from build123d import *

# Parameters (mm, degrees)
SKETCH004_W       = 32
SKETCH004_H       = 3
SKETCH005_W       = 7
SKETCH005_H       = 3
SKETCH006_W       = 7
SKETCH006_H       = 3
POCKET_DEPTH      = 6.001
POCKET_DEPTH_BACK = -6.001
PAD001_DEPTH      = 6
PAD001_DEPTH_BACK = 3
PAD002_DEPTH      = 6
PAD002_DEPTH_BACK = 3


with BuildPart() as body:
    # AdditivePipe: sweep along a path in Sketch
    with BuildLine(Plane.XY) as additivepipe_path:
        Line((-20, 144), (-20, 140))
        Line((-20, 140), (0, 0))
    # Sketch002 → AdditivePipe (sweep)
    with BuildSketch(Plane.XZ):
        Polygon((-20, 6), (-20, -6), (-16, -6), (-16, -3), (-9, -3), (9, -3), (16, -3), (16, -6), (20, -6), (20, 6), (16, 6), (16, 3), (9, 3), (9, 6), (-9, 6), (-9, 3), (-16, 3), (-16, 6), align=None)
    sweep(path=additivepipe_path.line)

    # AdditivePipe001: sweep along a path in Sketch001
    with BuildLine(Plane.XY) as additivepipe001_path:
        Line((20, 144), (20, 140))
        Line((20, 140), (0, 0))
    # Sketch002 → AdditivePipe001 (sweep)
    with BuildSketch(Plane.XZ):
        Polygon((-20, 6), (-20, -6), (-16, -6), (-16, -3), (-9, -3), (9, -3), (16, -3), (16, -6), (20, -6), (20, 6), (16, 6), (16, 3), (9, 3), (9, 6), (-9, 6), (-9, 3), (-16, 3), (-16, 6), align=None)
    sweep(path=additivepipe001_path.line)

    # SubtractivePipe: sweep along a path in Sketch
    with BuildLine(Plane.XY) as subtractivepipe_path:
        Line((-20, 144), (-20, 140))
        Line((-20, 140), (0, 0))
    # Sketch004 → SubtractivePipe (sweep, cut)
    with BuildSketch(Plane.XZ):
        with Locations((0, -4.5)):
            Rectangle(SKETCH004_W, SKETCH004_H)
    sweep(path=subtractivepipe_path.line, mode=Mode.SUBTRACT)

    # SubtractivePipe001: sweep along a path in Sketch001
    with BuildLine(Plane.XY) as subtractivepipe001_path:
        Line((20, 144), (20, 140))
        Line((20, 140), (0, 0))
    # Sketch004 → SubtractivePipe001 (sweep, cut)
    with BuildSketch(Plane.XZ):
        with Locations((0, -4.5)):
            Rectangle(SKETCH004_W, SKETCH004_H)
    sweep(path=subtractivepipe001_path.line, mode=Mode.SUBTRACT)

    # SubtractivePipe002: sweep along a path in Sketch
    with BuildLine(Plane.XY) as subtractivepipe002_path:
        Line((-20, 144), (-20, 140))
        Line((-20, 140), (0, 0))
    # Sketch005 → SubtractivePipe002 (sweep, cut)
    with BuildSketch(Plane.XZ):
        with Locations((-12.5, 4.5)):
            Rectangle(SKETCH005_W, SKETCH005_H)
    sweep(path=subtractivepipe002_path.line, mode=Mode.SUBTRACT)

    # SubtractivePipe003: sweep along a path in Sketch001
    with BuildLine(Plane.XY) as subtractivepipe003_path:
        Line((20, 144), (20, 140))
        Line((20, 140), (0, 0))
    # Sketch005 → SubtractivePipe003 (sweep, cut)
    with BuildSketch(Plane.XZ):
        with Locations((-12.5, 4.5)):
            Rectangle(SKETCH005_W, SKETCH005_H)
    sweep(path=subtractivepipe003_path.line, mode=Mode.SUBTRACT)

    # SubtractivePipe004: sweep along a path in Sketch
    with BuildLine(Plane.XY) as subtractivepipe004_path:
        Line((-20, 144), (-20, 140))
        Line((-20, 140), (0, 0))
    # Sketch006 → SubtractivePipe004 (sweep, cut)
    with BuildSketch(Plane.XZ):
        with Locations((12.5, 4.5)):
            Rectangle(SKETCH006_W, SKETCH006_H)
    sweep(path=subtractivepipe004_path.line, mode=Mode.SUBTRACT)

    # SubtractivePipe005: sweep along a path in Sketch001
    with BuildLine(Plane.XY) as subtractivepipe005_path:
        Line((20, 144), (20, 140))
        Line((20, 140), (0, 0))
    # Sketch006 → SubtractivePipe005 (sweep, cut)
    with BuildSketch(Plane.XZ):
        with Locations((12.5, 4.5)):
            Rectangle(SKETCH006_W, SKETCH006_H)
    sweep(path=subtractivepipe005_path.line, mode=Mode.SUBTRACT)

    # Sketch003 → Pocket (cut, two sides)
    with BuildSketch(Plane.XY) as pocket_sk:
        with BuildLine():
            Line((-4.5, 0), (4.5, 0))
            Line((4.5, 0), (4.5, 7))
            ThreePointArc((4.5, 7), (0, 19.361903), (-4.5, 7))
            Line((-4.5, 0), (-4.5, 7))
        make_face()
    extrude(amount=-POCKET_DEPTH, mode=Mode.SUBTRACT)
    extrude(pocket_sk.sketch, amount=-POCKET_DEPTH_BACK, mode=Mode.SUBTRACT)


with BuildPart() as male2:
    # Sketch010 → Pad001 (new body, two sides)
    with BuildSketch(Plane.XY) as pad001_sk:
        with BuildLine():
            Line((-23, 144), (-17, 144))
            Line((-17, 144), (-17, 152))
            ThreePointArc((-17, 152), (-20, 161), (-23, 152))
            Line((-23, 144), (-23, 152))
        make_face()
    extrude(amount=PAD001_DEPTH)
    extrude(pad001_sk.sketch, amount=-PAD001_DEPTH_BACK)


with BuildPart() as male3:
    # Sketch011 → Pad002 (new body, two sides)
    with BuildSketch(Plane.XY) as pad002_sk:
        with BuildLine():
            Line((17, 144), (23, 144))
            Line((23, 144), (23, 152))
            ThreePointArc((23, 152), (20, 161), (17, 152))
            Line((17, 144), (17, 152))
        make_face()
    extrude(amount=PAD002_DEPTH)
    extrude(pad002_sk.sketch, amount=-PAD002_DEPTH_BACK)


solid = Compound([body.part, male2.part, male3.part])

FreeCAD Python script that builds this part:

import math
import FreeCAD as App
import Part
import Sketcher
from FreeCAD import Vector


def add_polygon(sketch, points):
    """Adds a closed chain of lines whose ends are joined by coincident constraints."""
    first, n = sketch.GeometryCount, len(points)
    for a, b in zip(points, points[1:] + points[:1]):
        sketch.addGeometry(Part.LineSegment(App.Vector(*a, 0), App.Vector(*b, 0)), False)
    for i in range(n):
        sketch.addConstraint(Sketcher.Constraint("Coincident", first + i, 2, first + (i + 1) % n, 1))

doc = App.newDocument("Part")
body = doc.addObject("PartDesign::Body", "Body")

# Sketch on XZ plane
sketch1 = body.newObject("Sketcher::SketchObject", "Sketch")
sketch1.AttachmentSupport = (doc.getObject("XZ_Plane"), [""])
sketch1.MapMode = "FlatFace"
add_polygon(sketch1, [(-20, 6), (-20, -6), (-16, -6), (-16, -3), (16, -3), (16, -6), (20, -6), (20, 6), (16, 6), (16, 3), (9, 3), (9, 6), (-9, 6), (-9, 3), (-16, 3), (-16, 6)])  # lines 0-15
sketch1.addConstraint(Sketcher.Constraint("Vertical", 0))
sketch1.addConstraint(Sketcher.Constraint("Horizontal", 1))
sketch1.addConstraint(Sketcher.Constraint("Vertical", 2))
sketch1.addConstraint(Sketcher.Constraint("Horizontal", 3))
sketch1.addConstraint(Sketcher.Constraint("Vertical", 4))
sketch1.addConstraint(Sketcher.Constraint("Horizontal", 5))
sketch1.addConstraint(Sketcher.Constraint("Vertical", 6))
sketch1.addConstraint(Sketcher.Constraint("Horizontal", 7))
sketch1.addConstraint(Sketcher.Constraint("Vertical", 8))
sketch1.addConstraint(Sketcher.Constraint("Horizontal", 9))
sketch1.addConstraint(Sketcher.Constraint("Vertical", 10))
sketch1.addConstraint(Sketcher.Constraint("Horizontal", 11))
sketch1.addConstraint(Sketcher.Constraint("Vertical", 12))
sketch1.addConstraint(Sketcher.Constraint("Horizontal", 13))
sketch1.addConstraint(Sketcher.Constraint("Vertical", 14))
sketch1.addConstraint(Sketcher.Constraint("Horizontal", 15))
sketch1.addConstraint(Sketcher.Constraint("Symmetric", 0, 2, 6, 2, -1, 1))
sketch1.addConstraint(Sketcher.Constraint("Symmetric", 2, 2, 8, 2, -1, 1))
sketch1.addConstraint(Sketcher.Constraint("Symmetric", 3, 2, 13, 2, -1, 1))
sketch1.addConstraint(Sketcher.Constraint("Symmetric", 1, 2, 4, 2, -2))
sketch1.addConstraint(Sketcher.Constraint("Horizontal", 7, 2, 10, 2))
sketch1.addConstraint(Sketcher.Constraint("Horizontal", 11, 2, 14, 2))
sketch1.addConstraint(Sketcher.Constraint("Equal", 9, 13))
sketch1.addConstraint(Sketcher.Constraint("DistanceX", 1, 1, 1, 2, 4.0))
sketch1.addConstraint(Sketcher.Constraint("DistanceX", 3, 1, 3, 2, 32.0))
sketch1.addConstraint(Sketcher.Constraint("DistanceX", 9, 2, 9, 1, 7.0))
sketch1.addConstraint(Sketcher.Constraint("DistanceY", 0, 2, 0, 1, 12.0))
sketch1.addConstraint(Sketcher.Constraint("DistanceY", 2, 1, 2, 2, 3.0))

# Sketch on XY plane
sketch2 = body.newObject("Sketcher::SketchObject", "Sketch001")
sketch2.AttachmentSupport = (doc.getObject("XY_Plane"), [""])
sketch2.MapMode = "FlatFace"
sketch2.addGeometry(Part.LineSegment(Vector(-20, 144, 0), Vector(-20, 140, 0)), False)
sketch2.addGeometry(Part.LineSegment(Vector(-20, 140, 0), Vector(0, 0, 0)), False)
sketch2.addConstraint(Sketcher.Constraint("Coincident", 0, 2, 1, 1))
sketch2.addConstraint(Sketcher.Constraint("Vertical", 0))
sketch2.addConstraint(Sketcher.Constraint("Coincident", 1, 2, -1, 1))
sketch2.addConstraint(Sketcher.Constraint("DistanceY", 0, 2, 0, 1, 4.0))
sketch2.addConstraint(Sketcher.Constraint("DistanceX", 0, 1, -1, 1, 20.0))
sketch2.addConstraint(Sketcher.Constraint("DistanceY", -1, 1, 0, 1, 144.0))
doc.recompute()

additivepipe = body.newObject("PartDesign::AdditivePipe", "AdditivePipe")
additivepipe.Profile = sketch1
additivepipe.Spine = (sketch2, ["Edge1", "Edge2"])

# Sketch on XZ plane
sketch3 = body.newObject("Sketcher::SketchObject", "Sketch002")
sketch3.AttachmentSupport = (doc.getObject("XZ_Plane"), [""])
sketch3.MapMode = "FlatFace"
add_polygon(sketch3, [(-20, 6), (-20, -6), (-16, -6), (-16, -3), (16, -3), (16, -6), (20, -6), (20, 6), (16, 6), (16, 3), (9, 3), (9, 6), (-9, 6), (-9, 3), (-16, 3), (-16, 6)])  # lines 0-15
sketch3.addConstraint(Sketcher.Constraint("Vertical", 0))
sketch3.addConstraint(Sketcher.Constraint("Horizontal", 1))
sketch3.addConstraint(Sketcher.Constraint("Vertical", 2))
sketch3.addConstraint(Sketcher.Constraint("Horizontal", 3))
sketch3.addConstraint(Sketcher.Constraint("Vertical", 4))
sketch3.addConstraint(Sketcher.Constraint("Horizontal", 5))
sketch3.addConstraint(Sketcher.Constraint("Vertical", 6))
sketch3.addConstraint(Sketcher.Constraint("Horizontal", 7))
sketch3.addConstraint(Sketcher.Constraint("Vertical", 8))
sketch3.addConstraint(Sketcher.Constraint("Horizontal", 9))
sketch3.addConstraint(Sketcher.Constraint("Vertical", 10))
sketch3.addConstraint(Sketcher.Constraint("Horizontal", 11))
sketch3.addConstraint(Sketcher.Constraint("Vertical", 12))
sketch3.addConstraint(Sketcher.Constraint("Horizontal", 13))
sketch3.addConstraint(Sketcher.Constraint("Vertical", 14))
sketch3.addConstraint(Sketcher.Constraint("Horizontal", 15))
sketch3.addConstraint(Sketcher.Constraint("Symmetric", 0, 2, 6, 2, -1, 1))
sketch3.addConstraint(Sketcher.Constraint("Symmetric", 2, 2, 8, 2, -1, 1))
sketch3.addConstraint(Sketcher.Constraint("Symmetric", 3, 2, 13, 2, -1, 1))
sketch3.addConstraint(Sketcher.Constraint("Symmetric", 1, 2, 4, 2, -2))
sketch3.addConstraint(Sketcher.Constraint("Horizontal", 7, 2, 10, 2))
sketch3.addConstraint(Sketcher.Constraint("Horizontal", 11, 2, 14, 2))
sketch3.addConstraint(Sketcher.Constraint("Equal", 9, 13))
sketch3.addConstraint(Sketcher.Constraint("DistanceX", 1, 1, 1, 2, 4.0))
sketch3.addConstraint(Sketcher.Constraint("DistanceX", 3, 1, 3, 2, 32.0))
sketch3.addConstraint(Sketcher.Constraint("DistanceX", 9, 2, 9, 1, 7.0))
sketch3.addConstraint(Sketcher.Constraint("DistanceY", 0, 2, 0, 1, 12.0))
sketch3.addConstraint(Sketcher.Constraint("DistanceY", 2, 1, 2, 2, 3.0))

# Sketch on XY plane
sketch4 = body.newObject("Sketcher::SketchObject", "Sketch003")
sketch4.AttachmentSupport = (doc.getObject("XY_Plane"), [""])
sketch4.MapMode = "FlatFace"
sketch4.addGeometry(Part.LineSegment(Vector(20, 144, 0), Vector(20, 140, 0)), False)
sketch4.addGeometry(Part.LineSegment(Vector(20, 140, 0), Vector(0, 0, 0)), False)
sketch4.addConstraint(Sketcher.Constraint("Coincident", 0, 2, 1, 1))
sketch4.addConstraint(Sketcher.Constraint("Vertical", 0))
sketch4.addConstraint(Sketcher.Constraint("Coincident", 1, 2, -1, 1))
sketch4.addConstraint(Sketcher.Constraint("DistanceY", 0, 2, 0, 1, 4.0))
sketch4.addConstraint(Sketcher.Constraint("DistanceX", -1, 1, 0, 1, 20.0))
sketch4.addConstraint(Sketcher.Constraint("DistanceY", -1, 1, 0, 1, 144.0))
doc.recompute()

additivepipe2 = body.newObject("PartDesign::AdditivePipe", "AdditivePipe001")
additivepipe2.Profile = sketch3
additivepipe2.Spine = (sketch4, ["Edge1", "Edge2"])

# Sketch on XZ plane
sketch5 = body.newObject("Sketcher::SketchObject", "Sketch004")
sketch5.AttachmentSupport = (doc.getObject("XZ_Plane"), [""])
sketch5.MapMode = "FlatFace"
add_polygon(sketch5, [(-16, -3), (-16, -6), (16, -6), (16, -3)])  # lines 0-3
sketch5.addConstraint(Sketcher.Constraint("Vertical", 0))
sketch5.addConstraint(Sketcher.Constraint("Horizontal", 1))
sketch5.addConstraint(Sketcher.Constraint("Vertical", 2))
sketch5.addConstraint(Sketcher.Constraint("Horizontal", 3))
sketch5.addConstraint(Sketcher.Constraint("DistanceX", 1, 1, 1, 2, 32.0))
sketch5.addConstraint(Sketcher.Constraint("DistanceY", 0, 2, 0, 1, 3.0))
sketch5.addConstraint(Sketcher.Constraint("DistanceX", 0, 2, -1, 1, 16.0))
sketch5.addConstraint(Sketcher.Constraint("DistanceY", 0, 2, -1, 1, 6.0))

# Sketch on XY plane
sketch6 = body.newObject("Sketcher::SketchObject", "Sketch005")
sketch6.AttachmentSupport = (doc.getObject("XY_Plane"), [""])
sketch6.MapMode = "FlatFace"
sketch6.addGeometry(Part.LineSegment(Vector(-20, 144, 0), Vector(-20, 140, 0)), False)
sketch6.addGeometry(Part.LineSegment(Vector(-20, 140, 0), Vector(0, 0, 0)), False)
sketch6.addConstraint(Sketcher.Constraint("Coincident", 0, 2, 1, 1))
sketch6.addConstraint(Sketcher.Constraint("Vertical", 0))
sketch6.addConstraint(Sketcher.Constraint("Coincident", 1, 2, -1, 1))
sketch6.addConstraint(Sketcher.Constraint("DistanceY", 0, 2, 0, 1, 4.0))
sketch6.addConstraint(Sketcher.Constraint("DistanceX", 0, 1, -1, 1, 20.0))
sketch6.addConstraint(Sketcher.Constraint("DistanceY", -1, 1, 0, 1, 144.0))
doc.recompute()

subtractivepipe = body.newObject("PartDesign::SubtractivePipe", "SubtractivePipe")
subtractivepipe.Profile = sketch5
subtractivepipe.Spine = (sketch6, ["Edge1", "Edge2"])

# Sketch on XZ plane
sketch7 = body.newObject("Sketcher::SketchObject", "Sketch006")
sketch7.AttachmentSupport = (doc.getObject("XZ_Plane"), [""])
sketch7.MapMode = "FlatFace"
add_polygon(sketch7, [(-16, -3), (-16, -6), (16, -6), (16, -3)])  # lines 0-3
sketch7.addConstraint(Sketcher.Constraint("Vertical", 0))
sketch7.addConstraint(Sketcher.Constraint("Horizontal", 1))
sketch7.addConstraint(Sketcher.Constraint("Vertical", 2))
sketch7.addConstraint(Sketcher.Constraint("Horizontal", 3))
sketch7.addConstraint(Sketcher.Constraint("DistanceX", 1, 1, 1, 2, 32.0))
sketch7.addConstraint(Sketcher.Constraint("DistanceY", 0, 2, 0, 1, 3.0))
sketch7.addConstraint(Sketcher.Constraint("DistanceX", 0, 2, -1, 1, 16.0))
sketch7.addConstraint(Sketcher.Constraint("DistanceY", 0, 2, -1, 1, 6.0))

# Sketch on XY plane
sketch8 = body.newObject("Sketcher::SketchObject", "Sketch007")
sketch8.AttachmentSupport = (doc.getObject("XY_Plane"), [""])
sketch8.MapMode = "FlatFace"
sketch8.addGeometry(Part.LineSegment(Vector(20, 144, 0), Vector(20, 140, 0)), False)
sketch8.addGeometry(Part.LineSegment(Vector(20, 140, 0), Vector(0, 0, 0)), False)
sketch8.addConstraint(Sketcher.Constraint("Coincident", 0, 2, 1, 1))
sketch8.addConstraint(Sketcher.Constraint("Vertical", 0))
sketch8.addConstraint(Sketcher.Constraint("Coincident", 1, 2, -1, 1))
sketch8.addConstraint(Sketcher.Constraint("DistanceY", 0, 2, 0, 1, 4.0))
sketch8.addConstraint(Sketcher.Constraint("DistanceX", -1, 1, 0, 1, 20.0))
sketch8.addConstraint(Sketcher.Constraint("DistanceY", -1, 1, 0, 1, 144.0))
doc.recompute()

subtractivepipe2 = body.newObject("PartDesign::SubtractivePipe", "SubtractivePipe001")
subtractivepipe2.Profile = sketch7
subtractivepipe2.Spine = (sketch8, ["Edge1", "Edge2"])

# Sketch on XZ plane
sketch9 = body.newObject("Sketcher::SketchObject", "Sketch008")
sketch9.AttachmentSupport = (doc.getObject("XZ_Plane"), [""])
sketch9.MapMode = "FlatFace"
add_polygon(sketch9, [(-16, 6), (-16, 3), (-9, 3), (-9, 6)])  # lines 0-3
sketch9.addConstraint(Sketcher.Constraint("Vertical", 0))
sketch9.addConstraint(Sketcher.Constraint("Horizontal", 1))
sketch9.addConstraint(Sketcher.Constraint("Vertical", 2))
sketch9.addConstraint(Sketcher.Constraint("Horizontal", 3))
sketch9.addConstraint(Sketcher.Constraint("DistanceX", 1, 1, 1, 2, 7.0))
sketch9.addConstraint(Sketcher.Constraint("DistanceY", 0, 2, 0, 1, 3.0))
sketch9.addConstraint(Sketcher.Constraint("DistanceX", 0, 2, -1, 1, 16.0))
sketch9.addConstraint(Sketcher.Constraint("DistanceY", -1, 1, 0, 2, 3.0))

# Sketch on XY plane
sketch10 = body.newObject("Sketcher::SketchObject", "Sketch009")
sketch10.AttachmentSupport = (doc.getObject("XY_Plane"), [""])
sketch10.MapMode = "FlatFace"
sketch10.addGeometry(Part.LineSegment(Vector(-20, 144, 0), Vector(-20, 140, 0)), False)
sketch10.addGeometry(Part.LineSegment(Vector(-20, 140, 0), Vector(0, 0, 0)), False)
sketch10.addConstraint(Sketcher.Constraint("Coincident", 0, 2, 1, 1))
sketch10.addConstraint(Sketcher.Constraint("Vertical", 0))
sketch10.addConstraint(Sketcher.Constraint("Coincident", 1, 2, -1, 1))
sketch10.addConstraint(Sketcher.Constraint("DistanceY", 0, 2, 0, 1, 4.0))
sketch10.addConstraint(Sketcher.Constraint("DistanceX", 0, 1, -1, 1, 20.0))
sketch10.addConstraint(Sketcher.Constraint("DistanceY", -1, 1, 0, 1, 144.0))
doc.recompute()

subtractivepipe3 = body.newObject("PartDesign::SubtractivePipe", "SubtractivePipe002")
subtractivepipe3.Profile = sketch9
subtractivepipe3.Spine = (sketch10, ["Edge1", "Edge2"])

# Sketch on XZ plane
sketch11 = body.newObject("Sketcher::SketchObject", "Sketch010")
sketch11.AttachmentSupport = (doc.getObject("XZ_Plane"), [""])
sketch11.MapMode = "FlatFace"
add_polygon(sketch11, [(-16, 6), (-16, 3), (-9, 3), (-9, 6)])  # lines 0-3
sketch11.addConstraint(Sketcher.Constraint("Vertical", 0))
sketch11.addConstraint(Sketcher.Constraint("Horizontal", 1))
sketch11.addConstraint(Sketcher.Constraint("Vertical", 2))
sketch11.addConstraint(Sketcher.Constraint("Horizontal", 3))
sketch11.addConstraint(Sketcher.Constraint("DistanceX", 1, 1, 1, 2, 7.0))
sketch11.addConstraint(Sketcher.Constraint("DistanceY", 0, 2, 0, 1, 3.0))
sketch11.addConstraint(Sketcher.Constraint("DistanceX", 0, 2, -1, 1, 16.0))
sketch11.addConstraint(Sketcher.Constraint("DistanceY", -1, 1, 0, 2, 3.0))

# Sketch on XY plane
sketch12 = body.newObject("Sketcher::SketchObject", "Sketch011")
sketch12.AttachmentSupport = (doc.getObject("XY_Plane"), [""])
sketch12.MapMode = "FlatFace"
sketch12.addGeometry(Part.LineSegment(Vector(20, 144, 0), Vector(20, 140, 0)), False)
sketch12.addGeometry(Part.LineSegment(Vector(20, 140, 0), Vector(0, 0, 0)), False)
sketch12.addConstraint(Sketcher.Constraint("Coincident", 0, 2, 1, 1))
sketch12.addConstraint(Sketcher.Constraint("Vertical", 0))
sketch12.addConstraint(Sketcher.Constraint("Coincident", 1, 2, -1, 1))
sketch12.addConstraint(Sketcher.Constraint("DistanceY", 0, 2, 0, 1, 4.0))
sketch12.addConstraint(Sketcher.Constraint("DistanceX", -1, 1, 0, 1, 20.0))
sketch12.addConstraint(Sketcher.Constraint("DistanceY", -1, 1, 0, 1, 144.0))
doc.recompute()

subtractivepipe4 = body.newObject("PartDesign::SubtractivePipe", "SubtractivePipe003")
subtractivepipe4.Profile = sketch11
subtractivepipe4.Spine = (sketch12, ["Edge1", "Edge2"])

# Sketch on XZ plane
sketch13 = body.newObject("Sketcher::SketchObject", "Sketch012")
sketch13.AttachmentSupport = (doc.getObject("XZ_Plane"), [""])
sketch13.MapMode = "FlatFace"
add_polygon(sketch13, [(9, 6), (9, 3), (16, 3), (16, 6)])  # lines 0-3
sketch13.addConstraint(Sketcher.Constraint("Vertical", 0))
sketch13.addConstraint(Sketcher.Constraint("Horizontal", 1))
sketch13.addConstraint(Sketcher.Constraint("Vertical", 2))
sketch13.addConstraint(Sketcher.Constraint("Horizontal", 3))
sketch13.addConstraint(Sketcher.Constraint("DistanceX", 1, 1, 1, 2, 7.0))
sketch13.addConstraint(Sketcher.Constraint("DistanceY", 0, 2, 0, 1, 3.0))
sketch13.addConstraint(Sketcher.Constraint("DistanceX", -1, 1, 0, 2, 9.0))
sketch13.addConstraint(Sketcher.Constraint("DistanceY", -1, 1, 0, 2, 3.0))

# Sketch on XY plane
sketch14 = body.newObject("Sketcher::SketchObject", "Sketch013")
sketch14.AttachmentSupport = (doc.getObject("XY_Plane"), [""])
sketch14.MapMode = "FlatFace"
sketch14.addGeometry(Part.LineSegment(Vector(-20, 144, 0), Vector(-20, 140, 0)), False)
sketch14.addGeometry(Part.LineSegment(Vector(-20, 140, 0), Vector(0, 0, 0)), False)
sketch14.addConstraint(Sketcher.Constraint("Coincident", 0, 2, 1, 1))
sketch14.addConstraint(Sketcher.Constraint("Vertical", 0))
sketch14.addConstraint(Sketcher.Constraint("Coincident", 1, 2, -1, 1))
sketch14.addConstraint(Sketcher.Constraint("DistanceY", 0, 2, 0, 1, 4.0))
sketch14.addConstraint(Sketcher.Constraint("DistanceX", 0, 1, -1, 1, 20.0))
sketch14.addConstraint(Sketcher.Constraint("DistanceY", -1, 1, 0, 1, 144.0))
doc.recompute()

subtractivepipe5 = body.newObject("PartDesign::SubtractivePipe", "SubtractivePipe004")
subtractivepipe5.Profile = sketch13
subtractivepipe5.Spine = (sketch14, ["Edge1", "Edge2"])

# Sketch on XZ plane
sketch15 = body.newObject("Sketcher::SketchObject", "Sketch014")
sketch15.AttachmentSupport = (doc.getObject("XZ_Plane"), [""])
sketch15.MapMode = "FlatFace"
add_polygon(sketch15, [(9, 6), (9, 3), (16, 3), (16, 6)])  # lines 0-3
sketch15.addConstraint(Sketcher.Constraint("Vertical", 0))
sketch15.addConstraint(Sketcher.Constraint("Horizontal", 1))
sketch15.addConstraint(Sketcher.Constraint("Vertical", 2))
sketch15.addConstraint(Sketcher.Constraint("Horizontal", 3))
sketch15.addConstraint(Sketcher.Constraint("DistanceX", 1, 1, 1, 2, 7.0))
sketch15.addConstraint(Sketcher.Constraint("DistanceY", 0, 2, 0, 1, 3.0))
sketch15.addConstraint(Sketcher.Constraint("DistanceX", -1, 1, 0, 2, 9.0))
sketch15.addConstraint(Sketcher.Constraint("DistanceY", -1, 1, 0, 2, 3.0))

# Sketch on XY plane
sketch16 = body.newObject("Sketcher::SketchObject", "Sketch015")
sketch16.AttachmentSupport = (doc.getObject("XY_Plane"), [""])
sketch16.MapMode = "FlatFace"
sketch16.addGeometry(Part.LineSegment(Vector(20, 144, 0), Vector(20, 140, 0)), False)
sketch16.addGeometry(Part.LineSegment(Vector(20, 140, 0), Vector(0, 0, 0)), False)
sketch16.addConstraint(Sketcher.Constraint("Coincident", 0, 2, 1, 1))
sketch16.addConstraint(Sketcher.Constraint("Vertical", 0))
sketch16.addConstraint(Sketcher.Constraint("Coincident", 1, 2, -1, 1))
sketch16.addConstraint(Sketcher.Constraint("DistanceY", 0, 2, 0, 1, 4.0))
sketch16.addConstraint(Sketcher.Constraint("DistanceX", -1, 1, 0, 1, 20.0))
sketch16.addConstraint(Sketcher.Constraint("DistanceY", -1, 1, 0, 1, 144.0))
doc.recompute()

subtractivepipe6 = body.newObject("PartDesign::SubtractivePipe", "SubtractivePipe005")
subtractivepipe6.Profile = sketch15
subtractivepipe6.Spine = (sketch16, ["Edge1", "Edge2"])

# Sketch on XY plane
sketch17 = body.newObject("Sketcher::SketchObject", "Sketch016")
sketch17.AttachmentSupport = (doc.getObject("XY_Plane"), [""])
sketch17.MapMode = "FlatFace"
sketch17.addGeometry(Part.LineSegment(Vector(-4, 0, 0), Vector(4, 0, 0)), False)
sketch17.addGeometry(Part.LineSegment(Vector(4, 0, 0), Vector(4, 7, 0)), False)
sketch17.addGeometry(Part.ArcOfCircle(Part.Circle(Vector(0, 12, 0), Vector(0, 0, 1), 7), math.radians(-50), math.radians(230)), False)
sketch17.addGeometry(Part.LineSegment(Vector(-4, 7, 0), Vector(-4, 0, 0)), False)
sketch17.addConstraint(Sketcher.Constraint("Coincident", 0, 2, 1, 1))
sketch17.addConstraint(Sketcher.Constraint("Coincident", 1, 2, 2, 1))
sketch17.addConstraint(Sketcher.Constraint("Coincident", 2, 2, 3, 1))
sketch17.addConstraint(Sketcher.Constraint("Coincident", 3, 2, 0, 1))
sketch17.addConstraint(Sketcher.Constraint("Horizontal", 0))
sketch17.addConstraint(Sketcher.Constraint("Vertical", 1))
sketch17.addConstraint(Sketcher.Constraint("Vertical", 3))
sketch17.addConstraint(Sketcher.Constraint("Symmetric", 0, 2, 3, 2, -1, 1))
sketch17.addConstraint(Sketcher.Constraint("PointOnObject", 2, 3, -2))
sketch17.addConstraint(Sketcher.Constraint("Radius", 2, 7.0))
sketch17.addConstraint(Sketcher.Constraint("DistanceX", 0, 1, 0, 2, 9.0))
sketch17.addConstraint(Sketcher.Constraint("DistanceY", 1, 1, 1, 2, 7.0))
pocket1 = body.newObject("PartDesign::Pocket", "Pocket")
pocket1.Profile = sketch17
pocket1.Type = "ThroughAll"
pocket1.Midplane = True
body2 = doc.addObject("PartDesign::Body", "Body001")

# Sketch on XY plane
sketch18 = body2.newObject("Sketcher::SketchObject", "Sketch017")
sketch18.AttachmentSupport = (doc.getObject("XY_Plane001"), [""])
sketch18.MapMode = "FlatFace"
sketch18.addGeometry(Part.LineSegment(Vector(-23, 144, 0), Vector(-17, 144, 0)), False)
sketch18.addGeometry(Part.LineSegment(Vector(-17, 144, 0), Vector(-17, 152, 0)), False)
sketch18.addGeometry(Part.ArcOfCircle(Part.Circle(Vector(-20, 156, 0), Vector(0, 0, 1), 5), math.radians(-53), math.radians(233)), False)
sketch18.addGeometry(Part.LineSegment(Vector(-23, 152, 0), Vector(-23, 144, 0)), False)
sketch18.addConstraint(Sketcher.Constraint("Coincident", 0, 2, 1, 1))
sketch18.addConstraint(Sketcher.Constraint("Coincident", 1, 2, 2, 1))
sketch18.addConstraint(Sketcher.Constraint("Coincident", 2, 2, 3, 1))
sketch18.addConstraint(Sketcher.Constraint("Coincident", 3, 2, 0, 1))
sketch18.addConstraint(Sketcher.Constraint("Horizontal", 0))
sketch18.addConstraint(Sketcher.Constraint("Vertical", 1))
sketch18.addConstraint(Sketcher.Constraint("Vertical", 3))
sketch18.addConstraint(Sketcher.Constraint("Horizontal", 1, 2, 2, 2))
sketch18.addConstraint(Sketcher.Constraint("Radius", 2, 5.0))
sketch18.addConstraint(Sketcher.Constraint("DistanceX", 0, 1, 0, 2, 6.0))
sketch18.addConstraint(Sketcher.Constraint("DistanceY", 1, 1, 1, 2, 8.0))
sketch18.addConstraint(Sketcher.Constraint("DistanceX", 2, 3, -1, 1, 20.0))
sketch18.addConstraint(Sketcher.Constraint("DistanceY", -1, 1, 2, 3, 156.0))
pad1 = body2.newObject("PartDesign::Pad", "Pad")
pad1.Profile = sketch18
pad1.Type = "TwoLengths"
pad1.Length = 6
pad1.Length2 = 3
body3 = doc.addObject("PartDesign::Body", "Body002")

# Sketch on XY plane
sketch19 = body3.newObject("Sketcher::SketchObject", "Sketch018")
sketch19.AttachmentSupport = (doc.getObject("XY_Plane002"), [""])
sketch19.MapMode = "FlatFace"
sketch19.addGeometry(Part.LineSegment(Vector(17, 144, 0), Vector(23, 144, 0)), False)
sketch19.addGeometry(Part.LineSegment(Vector(23, 144, 0), Vector(23, 152, 0)), False)
sketch19.addGeometry(Part.ArcOfCircle(Part.Circle(Vector(20, 156, 0), Vector(0, 0, 1), 5), math.radians(-53), math.radians(233)), False)
sketch19.addGeometry(Part.LineSegment(Vector(17, 152, 0), Vector(17, 144, 0)), False)
sketch19.addConstraint(Sketcher.Constraint("Coincident", 0, 2, 1, 1))
sketch19.addConstraint(Sketcher.Constraint("Coincident", 1, 2, 2, 1))
sketch19.addConstraint(Sketcher.Constraint("Coincident", 2, 2, 3, 1))
sketch19.addConstraint(Sketcher.Constraint("Coincident", 3, 2, 0, 1))
sketch19.addConstraint(Sketcher.Constraint("Horizontal", 0))
sketch19.addConstraint(Sketcher.Constraint("Vertical", 1))
sketch19.addConstraint(Sketcher.Constraint("Vertical", 3))
sketch19.addConstraint(Sketcher.Constraint("Horizontal", 1, 2, 2, 2))
sketch19.addConstraint(Sketcher.Constraint("Radius", 2, 5.0))
sketch19.addConstraint(Sketcher.Constraint("DistanceX", 0, 1, 0, 2, 6.0))
sketch19.addConstraint(Sketcher.Constraint("DistanceY", 1, 1, 1, 2, 8.0))
sketch19.addConstraint(Sketcher.Constraint("DistanceX", -1, 1, 2, 3, 20.0))
sketch19.addConstraint(Sketcher.Constraint("DistanceY", -1, 1, 2, 3, 156.0))
pad2 = body3.newObject("PartDesign::Pad", "Pad001")
pad2.Profile = sketch19
pad2.Type = "TwoLengths"
pad2.Length = 6
pad2.Length2 = 3

doc.recompute()
